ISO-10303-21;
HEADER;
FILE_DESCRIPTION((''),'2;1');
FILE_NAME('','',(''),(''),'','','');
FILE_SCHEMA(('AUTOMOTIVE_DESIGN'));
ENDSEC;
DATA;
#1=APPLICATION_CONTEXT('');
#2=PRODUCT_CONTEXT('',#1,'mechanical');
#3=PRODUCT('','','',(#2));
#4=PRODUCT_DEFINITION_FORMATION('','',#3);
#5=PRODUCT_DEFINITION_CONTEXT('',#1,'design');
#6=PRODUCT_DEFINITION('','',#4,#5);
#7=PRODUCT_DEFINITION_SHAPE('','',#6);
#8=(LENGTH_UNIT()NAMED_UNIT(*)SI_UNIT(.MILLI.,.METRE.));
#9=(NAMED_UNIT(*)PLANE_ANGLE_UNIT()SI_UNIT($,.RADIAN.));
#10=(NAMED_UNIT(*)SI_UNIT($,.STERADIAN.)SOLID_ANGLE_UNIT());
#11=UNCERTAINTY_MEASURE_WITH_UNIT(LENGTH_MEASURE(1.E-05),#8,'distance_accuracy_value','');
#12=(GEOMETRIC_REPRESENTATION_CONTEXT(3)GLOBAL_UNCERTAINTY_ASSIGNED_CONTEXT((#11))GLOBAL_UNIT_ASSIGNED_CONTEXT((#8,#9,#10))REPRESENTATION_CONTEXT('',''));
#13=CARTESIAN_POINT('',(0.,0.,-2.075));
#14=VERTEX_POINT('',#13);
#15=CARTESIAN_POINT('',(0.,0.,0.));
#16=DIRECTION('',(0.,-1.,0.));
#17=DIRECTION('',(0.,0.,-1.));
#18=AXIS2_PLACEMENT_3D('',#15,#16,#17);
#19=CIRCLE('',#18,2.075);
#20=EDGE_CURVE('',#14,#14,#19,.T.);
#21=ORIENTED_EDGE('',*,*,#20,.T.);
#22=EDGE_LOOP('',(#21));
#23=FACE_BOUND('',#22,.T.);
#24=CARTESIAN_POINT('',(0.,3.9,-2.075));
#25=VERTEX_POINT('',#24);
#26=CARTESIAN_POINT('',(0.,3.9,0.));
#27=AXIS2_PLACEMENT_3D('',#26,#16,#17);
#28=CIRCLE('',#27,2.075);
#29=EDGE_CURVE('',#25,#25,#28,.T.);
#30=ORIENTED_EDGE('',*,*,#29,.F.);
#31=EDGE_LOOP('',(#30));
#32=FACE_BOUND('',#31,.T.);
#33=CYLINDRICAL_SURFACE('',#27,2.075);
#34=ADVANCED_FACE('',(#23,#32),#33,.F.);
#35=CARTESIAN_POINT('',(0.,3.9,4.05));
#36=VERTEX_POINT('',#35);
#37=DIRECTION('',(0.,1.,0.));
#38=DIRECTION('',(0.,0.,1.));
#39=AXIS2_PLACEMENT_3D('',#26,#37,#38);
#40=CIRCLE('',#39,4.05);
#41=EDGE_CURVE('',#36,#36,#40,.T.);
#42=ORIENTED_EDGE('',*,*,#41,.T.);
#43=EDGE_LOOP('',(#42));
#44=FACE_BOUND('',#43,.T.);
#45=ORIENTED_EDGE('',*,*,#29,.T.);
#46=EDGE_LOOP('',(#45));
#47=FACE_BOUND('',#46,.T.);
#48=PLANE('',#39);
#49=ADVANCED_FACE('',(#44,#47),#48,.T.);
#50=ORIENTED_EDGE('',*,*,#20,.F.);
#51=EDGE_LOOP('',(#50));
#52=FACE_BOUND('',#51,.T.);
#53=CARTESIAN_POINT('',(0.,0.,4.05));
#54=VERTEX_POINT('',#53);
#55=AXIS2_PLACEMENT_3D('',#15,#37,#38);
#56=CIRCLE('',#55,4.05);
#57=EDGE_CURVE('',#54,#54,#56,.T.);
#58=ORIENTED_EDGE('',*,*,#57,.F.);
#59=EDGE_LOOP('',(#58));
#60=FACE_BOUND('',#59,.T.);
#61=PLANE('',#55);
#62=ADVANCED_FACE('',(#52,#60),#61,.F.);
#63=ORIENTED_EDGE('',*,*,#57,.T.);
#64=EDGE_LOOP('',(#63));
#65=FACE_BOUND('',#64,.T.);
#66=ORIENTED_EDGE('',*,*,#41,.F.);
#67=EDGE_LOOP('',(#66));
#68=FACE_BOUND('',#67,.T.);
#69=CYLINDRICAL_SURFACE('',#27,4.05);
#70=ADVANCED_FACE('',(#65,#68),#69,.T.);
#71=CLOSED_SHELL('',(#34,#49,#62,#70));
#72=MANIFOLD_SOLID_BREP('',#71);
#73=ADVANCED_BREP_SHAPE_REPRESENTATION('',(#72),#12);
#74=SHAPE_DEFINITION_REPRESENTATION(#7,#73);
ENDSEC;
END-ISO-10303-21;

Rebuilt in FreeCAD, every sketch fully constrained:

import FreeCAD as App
import Part
import Sketcher

doc = App.newDocument("Part")
body = doc.addObject("PartDesign::Body", "Body")

sketch1 = doc.addObject("Sketcher::SketchObject", "Sketch")
body.addObject(sketch1)
sketch1.AttachmentSupport = (doc.XZ_Plane, [""])
sketch1.MapMode = "FlatFace"
sketch1.addGeometry(Part.Circle(App.Vector(0, 0, 0), App.Vector(0, 0, 1), 4.05), False)
sketch1.addConstraint(Sketcher.Constraint("Coincident", 0, 3, -1, 1))
sketch1.addConstraint(Sketcher.Constraint("Diameter", 0, 8.1))
pad1 = doc.addObject("PartDesign::Pad", "Pad")
body.addObject(pad1)
pad1.Profile = sketch1
pad1.Length = 3.9
pad1.Reversed = True

sketch2 = doc.addObject("Sketcher::SketchObject", "Sketch001")
body.addObject(sketch2)
sketch2.AttachmentSupport = (doc.XZ_Plane, [""])
sketch2.MapMode = "FlatFace"
sketch2.addGeometry(Part.Circle(App.Vector(0, 0, 0), App.Vector(0, 0, 1), 2.075), False)
sketch2.addConstraint(Sketcher.Constraint("Coincident", 0, 3, -1, 1))
sketch2.addConstraint(Sketcher.Constraint("Diameter", 0, 4.15))
pocket1 = doc.addObject("PartDesign::Pocket", "Pocket")
body.addObject(pocket1)
pocket1.Profile = sketch2
pocket1.Length = 3.9

doc.recompute()
